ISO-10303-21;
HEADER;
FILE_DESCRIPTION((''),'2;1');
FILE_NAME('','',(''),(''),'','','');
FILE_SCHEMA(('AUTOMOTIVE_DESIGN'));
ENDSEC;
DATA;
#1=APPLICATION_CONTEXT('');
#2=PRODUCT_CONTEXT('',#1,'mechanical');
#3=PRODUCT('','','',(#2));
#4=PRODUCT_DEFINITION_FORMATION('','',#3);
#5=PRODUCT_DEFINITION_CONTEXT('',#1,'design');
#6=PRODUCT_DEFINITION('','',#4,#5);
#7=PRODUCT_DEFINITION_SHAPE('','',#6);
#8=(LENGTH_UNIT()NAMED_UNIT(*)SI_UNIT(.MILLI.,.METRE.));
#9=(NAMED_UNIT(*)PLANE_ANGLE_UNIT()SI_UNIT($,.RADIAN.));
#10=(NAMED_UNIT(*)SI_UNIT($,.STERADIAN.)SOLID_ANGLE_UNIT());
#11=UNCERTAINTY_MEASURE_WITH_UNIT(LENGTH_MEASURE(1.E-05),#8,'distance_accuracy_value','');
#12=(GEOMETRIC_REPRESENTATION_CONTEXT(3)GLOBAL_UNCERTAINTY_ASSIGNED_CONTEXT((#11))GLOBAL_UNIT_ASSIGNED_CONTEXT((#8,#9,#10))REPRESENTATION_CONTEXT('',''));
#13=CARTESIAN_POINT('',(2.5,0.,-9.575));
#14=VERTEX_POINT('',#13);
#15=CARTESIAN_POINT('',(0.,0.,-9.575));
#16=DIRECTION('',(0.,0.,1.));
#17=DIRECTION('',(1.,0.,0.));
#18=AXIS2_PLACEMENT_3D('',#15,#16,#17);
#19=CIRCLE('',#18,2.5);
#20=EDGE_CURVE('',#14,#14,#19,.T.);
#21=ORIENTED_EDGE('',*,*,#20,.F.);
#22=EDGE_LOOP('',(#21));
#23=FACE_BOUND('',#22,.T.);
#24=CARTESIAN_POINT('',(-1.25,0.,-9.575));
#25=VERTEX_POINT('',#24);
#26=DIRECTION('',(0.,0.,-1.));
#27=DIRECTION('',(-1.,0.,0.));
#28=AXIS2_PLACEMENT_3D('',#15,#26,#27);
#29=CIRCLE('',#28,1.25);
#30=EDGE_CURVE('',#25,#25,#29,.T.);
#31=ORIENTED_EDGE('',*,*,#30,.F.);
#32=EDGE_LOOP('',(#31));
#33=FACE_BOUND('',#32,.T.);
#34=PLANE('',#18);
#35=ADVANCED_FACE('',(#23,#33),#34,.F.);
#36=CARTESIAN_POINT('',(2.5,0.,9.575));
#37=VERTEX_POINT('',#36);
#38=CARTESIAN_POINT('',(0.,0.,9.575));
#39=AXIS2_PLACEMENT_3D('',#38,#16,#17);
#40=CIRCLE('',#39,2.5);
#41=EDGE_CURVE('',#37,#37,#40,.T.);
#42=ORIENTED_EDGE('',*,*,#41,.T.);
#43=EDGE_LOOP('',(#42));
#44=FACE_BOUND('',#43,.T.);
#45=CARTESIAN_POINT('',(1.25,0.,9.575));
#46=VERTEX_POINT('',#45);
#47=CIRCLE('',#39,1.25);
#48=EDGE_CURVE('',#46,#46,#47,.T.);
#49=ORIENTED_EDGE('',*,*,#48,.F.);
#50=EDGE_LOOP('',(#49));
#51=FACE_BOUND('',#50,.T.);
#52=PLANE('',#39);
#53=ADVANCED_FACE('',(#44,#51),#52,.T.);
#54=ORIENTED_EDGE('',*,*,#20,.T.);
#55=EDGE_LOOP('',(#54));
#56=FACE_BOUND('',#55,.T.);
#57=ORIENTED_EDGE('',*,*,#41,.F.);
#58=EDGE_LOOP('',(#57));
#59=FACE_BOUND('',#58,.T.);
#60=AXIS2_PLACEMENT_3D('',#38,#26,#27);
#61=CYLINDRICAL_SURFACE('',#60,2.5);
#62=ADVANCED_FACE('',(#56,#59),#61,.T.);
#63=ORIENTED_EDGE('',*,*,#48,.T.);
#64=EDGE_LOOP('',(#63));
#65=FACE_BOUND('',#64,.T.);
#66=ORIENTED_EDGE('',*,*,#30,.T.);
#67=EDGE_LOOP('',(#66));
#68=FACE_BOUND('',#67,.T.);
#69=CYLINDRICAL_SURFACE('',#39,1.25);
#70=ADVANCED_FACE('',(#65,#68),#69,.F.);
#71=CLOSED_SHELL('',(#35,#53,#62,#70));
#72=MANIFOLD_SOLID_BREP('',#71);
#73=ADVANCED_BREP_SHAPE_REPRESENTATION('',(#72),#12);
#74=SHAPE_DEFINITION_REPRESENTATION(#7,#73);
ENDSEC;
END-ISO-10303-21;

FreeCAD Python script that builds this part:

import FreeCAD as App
import Part
import Sketcher

V = App.Vector
Q = App.Units.Quantity

doc = App.newDocument("Part")
params = doc.addObject("Spreadsheet::Sheet", "Params")
for row, (alias, value) in enumerate([
    ("sketch1_diameter", "5 mm"),
    ("pad1_length", "19.15 mm"),
    ("sketch2_diameter", "2.5 mm"),
    ("hole_diameter", "2.5 mm"),
    ("hole_depth", "9.575 mm"),
], start=1):
    params.set(f"A{row}", alias)
    params.set(f"B{row}", "=" + value)
    params.setAlias(f"B{row}", alias)

body = doc.addObject("PartDesign::Body", "Body")

sketch1 = doc.addObject("Sketcher::SketchObject", "Sketch")
body.addObject(sketch1)
sketch1.AttachmentSupport = (doc.XY_Plane, [""])
sketch1.MapMode = "FlatFace"
sketch1.addGeometry(Part.Circle(V(0, 0, 0), V(0, 0, 1), 2.5), False)
sketch1.addConstraint([
    Sketcher.Constraint("Coincident", 0, 3, -1, 1),
    Sketcher.Constraint("Diameter", 0, Q("5 mm")),
])
sketch1.setExpression("Constraints[1]", "Params.sketch1_diameter")
pad1 = doc.addObject("PartDesign::Pad", "Pad")
body.addObject(pad1)
pad1.Profile = sketch1
pad1.setExpression("Length", "Params.pad1_length")
pad1.Midplane = True

sketch2 = doc.addObject("Sketcher::SketchObject", "Sketch001")
body.addObject(sketch2)
sketch2.AttachmentSupport = (doc.XY_Plane, [""])
sketch2.MapMode = "FlatFace"
sketch2.AttachmentOffset = App.Placement(V(0, 0, 9.575), App.Rotation())
sketch2.addGeometry(Part.Circle(V(0, 0, 0), V(0, 0, 1), 1.2), False)
sketch2.addConstraint([
    Sketcher.Constraint("Coincident", 0, 3, -1, 1),
    Sketcher.Constraint("Diameter", 0, Q("2.5 mm")),
])
sketch2.setExpression("Constraints[1]", "Params.sketch2_diameter")
doc.recompute()
hole = doc.addObject("PartDesign::Hole", "Hole")
body.addObject(hole)
hole.Profile = sketch2
hole.ThreadType = "None"
hole.setExpression("Diameter", "Params.hole_diameter")
hole.DepthType = "Dimension"
hole.setExpression("Depth", "Params.hole_depth")
hole.DrillPoint = "Flat"
doc.recompute()

mirrored = doc.addObject("PartDesign::Mirrored", "Mirrored")
body.addObject(mirrored)
mirrored.Originals = [hole]
mirrored.MirrorPlane = (doc.XY_Plane, [""])
body.Tip = mirrored

doc.recompute()
